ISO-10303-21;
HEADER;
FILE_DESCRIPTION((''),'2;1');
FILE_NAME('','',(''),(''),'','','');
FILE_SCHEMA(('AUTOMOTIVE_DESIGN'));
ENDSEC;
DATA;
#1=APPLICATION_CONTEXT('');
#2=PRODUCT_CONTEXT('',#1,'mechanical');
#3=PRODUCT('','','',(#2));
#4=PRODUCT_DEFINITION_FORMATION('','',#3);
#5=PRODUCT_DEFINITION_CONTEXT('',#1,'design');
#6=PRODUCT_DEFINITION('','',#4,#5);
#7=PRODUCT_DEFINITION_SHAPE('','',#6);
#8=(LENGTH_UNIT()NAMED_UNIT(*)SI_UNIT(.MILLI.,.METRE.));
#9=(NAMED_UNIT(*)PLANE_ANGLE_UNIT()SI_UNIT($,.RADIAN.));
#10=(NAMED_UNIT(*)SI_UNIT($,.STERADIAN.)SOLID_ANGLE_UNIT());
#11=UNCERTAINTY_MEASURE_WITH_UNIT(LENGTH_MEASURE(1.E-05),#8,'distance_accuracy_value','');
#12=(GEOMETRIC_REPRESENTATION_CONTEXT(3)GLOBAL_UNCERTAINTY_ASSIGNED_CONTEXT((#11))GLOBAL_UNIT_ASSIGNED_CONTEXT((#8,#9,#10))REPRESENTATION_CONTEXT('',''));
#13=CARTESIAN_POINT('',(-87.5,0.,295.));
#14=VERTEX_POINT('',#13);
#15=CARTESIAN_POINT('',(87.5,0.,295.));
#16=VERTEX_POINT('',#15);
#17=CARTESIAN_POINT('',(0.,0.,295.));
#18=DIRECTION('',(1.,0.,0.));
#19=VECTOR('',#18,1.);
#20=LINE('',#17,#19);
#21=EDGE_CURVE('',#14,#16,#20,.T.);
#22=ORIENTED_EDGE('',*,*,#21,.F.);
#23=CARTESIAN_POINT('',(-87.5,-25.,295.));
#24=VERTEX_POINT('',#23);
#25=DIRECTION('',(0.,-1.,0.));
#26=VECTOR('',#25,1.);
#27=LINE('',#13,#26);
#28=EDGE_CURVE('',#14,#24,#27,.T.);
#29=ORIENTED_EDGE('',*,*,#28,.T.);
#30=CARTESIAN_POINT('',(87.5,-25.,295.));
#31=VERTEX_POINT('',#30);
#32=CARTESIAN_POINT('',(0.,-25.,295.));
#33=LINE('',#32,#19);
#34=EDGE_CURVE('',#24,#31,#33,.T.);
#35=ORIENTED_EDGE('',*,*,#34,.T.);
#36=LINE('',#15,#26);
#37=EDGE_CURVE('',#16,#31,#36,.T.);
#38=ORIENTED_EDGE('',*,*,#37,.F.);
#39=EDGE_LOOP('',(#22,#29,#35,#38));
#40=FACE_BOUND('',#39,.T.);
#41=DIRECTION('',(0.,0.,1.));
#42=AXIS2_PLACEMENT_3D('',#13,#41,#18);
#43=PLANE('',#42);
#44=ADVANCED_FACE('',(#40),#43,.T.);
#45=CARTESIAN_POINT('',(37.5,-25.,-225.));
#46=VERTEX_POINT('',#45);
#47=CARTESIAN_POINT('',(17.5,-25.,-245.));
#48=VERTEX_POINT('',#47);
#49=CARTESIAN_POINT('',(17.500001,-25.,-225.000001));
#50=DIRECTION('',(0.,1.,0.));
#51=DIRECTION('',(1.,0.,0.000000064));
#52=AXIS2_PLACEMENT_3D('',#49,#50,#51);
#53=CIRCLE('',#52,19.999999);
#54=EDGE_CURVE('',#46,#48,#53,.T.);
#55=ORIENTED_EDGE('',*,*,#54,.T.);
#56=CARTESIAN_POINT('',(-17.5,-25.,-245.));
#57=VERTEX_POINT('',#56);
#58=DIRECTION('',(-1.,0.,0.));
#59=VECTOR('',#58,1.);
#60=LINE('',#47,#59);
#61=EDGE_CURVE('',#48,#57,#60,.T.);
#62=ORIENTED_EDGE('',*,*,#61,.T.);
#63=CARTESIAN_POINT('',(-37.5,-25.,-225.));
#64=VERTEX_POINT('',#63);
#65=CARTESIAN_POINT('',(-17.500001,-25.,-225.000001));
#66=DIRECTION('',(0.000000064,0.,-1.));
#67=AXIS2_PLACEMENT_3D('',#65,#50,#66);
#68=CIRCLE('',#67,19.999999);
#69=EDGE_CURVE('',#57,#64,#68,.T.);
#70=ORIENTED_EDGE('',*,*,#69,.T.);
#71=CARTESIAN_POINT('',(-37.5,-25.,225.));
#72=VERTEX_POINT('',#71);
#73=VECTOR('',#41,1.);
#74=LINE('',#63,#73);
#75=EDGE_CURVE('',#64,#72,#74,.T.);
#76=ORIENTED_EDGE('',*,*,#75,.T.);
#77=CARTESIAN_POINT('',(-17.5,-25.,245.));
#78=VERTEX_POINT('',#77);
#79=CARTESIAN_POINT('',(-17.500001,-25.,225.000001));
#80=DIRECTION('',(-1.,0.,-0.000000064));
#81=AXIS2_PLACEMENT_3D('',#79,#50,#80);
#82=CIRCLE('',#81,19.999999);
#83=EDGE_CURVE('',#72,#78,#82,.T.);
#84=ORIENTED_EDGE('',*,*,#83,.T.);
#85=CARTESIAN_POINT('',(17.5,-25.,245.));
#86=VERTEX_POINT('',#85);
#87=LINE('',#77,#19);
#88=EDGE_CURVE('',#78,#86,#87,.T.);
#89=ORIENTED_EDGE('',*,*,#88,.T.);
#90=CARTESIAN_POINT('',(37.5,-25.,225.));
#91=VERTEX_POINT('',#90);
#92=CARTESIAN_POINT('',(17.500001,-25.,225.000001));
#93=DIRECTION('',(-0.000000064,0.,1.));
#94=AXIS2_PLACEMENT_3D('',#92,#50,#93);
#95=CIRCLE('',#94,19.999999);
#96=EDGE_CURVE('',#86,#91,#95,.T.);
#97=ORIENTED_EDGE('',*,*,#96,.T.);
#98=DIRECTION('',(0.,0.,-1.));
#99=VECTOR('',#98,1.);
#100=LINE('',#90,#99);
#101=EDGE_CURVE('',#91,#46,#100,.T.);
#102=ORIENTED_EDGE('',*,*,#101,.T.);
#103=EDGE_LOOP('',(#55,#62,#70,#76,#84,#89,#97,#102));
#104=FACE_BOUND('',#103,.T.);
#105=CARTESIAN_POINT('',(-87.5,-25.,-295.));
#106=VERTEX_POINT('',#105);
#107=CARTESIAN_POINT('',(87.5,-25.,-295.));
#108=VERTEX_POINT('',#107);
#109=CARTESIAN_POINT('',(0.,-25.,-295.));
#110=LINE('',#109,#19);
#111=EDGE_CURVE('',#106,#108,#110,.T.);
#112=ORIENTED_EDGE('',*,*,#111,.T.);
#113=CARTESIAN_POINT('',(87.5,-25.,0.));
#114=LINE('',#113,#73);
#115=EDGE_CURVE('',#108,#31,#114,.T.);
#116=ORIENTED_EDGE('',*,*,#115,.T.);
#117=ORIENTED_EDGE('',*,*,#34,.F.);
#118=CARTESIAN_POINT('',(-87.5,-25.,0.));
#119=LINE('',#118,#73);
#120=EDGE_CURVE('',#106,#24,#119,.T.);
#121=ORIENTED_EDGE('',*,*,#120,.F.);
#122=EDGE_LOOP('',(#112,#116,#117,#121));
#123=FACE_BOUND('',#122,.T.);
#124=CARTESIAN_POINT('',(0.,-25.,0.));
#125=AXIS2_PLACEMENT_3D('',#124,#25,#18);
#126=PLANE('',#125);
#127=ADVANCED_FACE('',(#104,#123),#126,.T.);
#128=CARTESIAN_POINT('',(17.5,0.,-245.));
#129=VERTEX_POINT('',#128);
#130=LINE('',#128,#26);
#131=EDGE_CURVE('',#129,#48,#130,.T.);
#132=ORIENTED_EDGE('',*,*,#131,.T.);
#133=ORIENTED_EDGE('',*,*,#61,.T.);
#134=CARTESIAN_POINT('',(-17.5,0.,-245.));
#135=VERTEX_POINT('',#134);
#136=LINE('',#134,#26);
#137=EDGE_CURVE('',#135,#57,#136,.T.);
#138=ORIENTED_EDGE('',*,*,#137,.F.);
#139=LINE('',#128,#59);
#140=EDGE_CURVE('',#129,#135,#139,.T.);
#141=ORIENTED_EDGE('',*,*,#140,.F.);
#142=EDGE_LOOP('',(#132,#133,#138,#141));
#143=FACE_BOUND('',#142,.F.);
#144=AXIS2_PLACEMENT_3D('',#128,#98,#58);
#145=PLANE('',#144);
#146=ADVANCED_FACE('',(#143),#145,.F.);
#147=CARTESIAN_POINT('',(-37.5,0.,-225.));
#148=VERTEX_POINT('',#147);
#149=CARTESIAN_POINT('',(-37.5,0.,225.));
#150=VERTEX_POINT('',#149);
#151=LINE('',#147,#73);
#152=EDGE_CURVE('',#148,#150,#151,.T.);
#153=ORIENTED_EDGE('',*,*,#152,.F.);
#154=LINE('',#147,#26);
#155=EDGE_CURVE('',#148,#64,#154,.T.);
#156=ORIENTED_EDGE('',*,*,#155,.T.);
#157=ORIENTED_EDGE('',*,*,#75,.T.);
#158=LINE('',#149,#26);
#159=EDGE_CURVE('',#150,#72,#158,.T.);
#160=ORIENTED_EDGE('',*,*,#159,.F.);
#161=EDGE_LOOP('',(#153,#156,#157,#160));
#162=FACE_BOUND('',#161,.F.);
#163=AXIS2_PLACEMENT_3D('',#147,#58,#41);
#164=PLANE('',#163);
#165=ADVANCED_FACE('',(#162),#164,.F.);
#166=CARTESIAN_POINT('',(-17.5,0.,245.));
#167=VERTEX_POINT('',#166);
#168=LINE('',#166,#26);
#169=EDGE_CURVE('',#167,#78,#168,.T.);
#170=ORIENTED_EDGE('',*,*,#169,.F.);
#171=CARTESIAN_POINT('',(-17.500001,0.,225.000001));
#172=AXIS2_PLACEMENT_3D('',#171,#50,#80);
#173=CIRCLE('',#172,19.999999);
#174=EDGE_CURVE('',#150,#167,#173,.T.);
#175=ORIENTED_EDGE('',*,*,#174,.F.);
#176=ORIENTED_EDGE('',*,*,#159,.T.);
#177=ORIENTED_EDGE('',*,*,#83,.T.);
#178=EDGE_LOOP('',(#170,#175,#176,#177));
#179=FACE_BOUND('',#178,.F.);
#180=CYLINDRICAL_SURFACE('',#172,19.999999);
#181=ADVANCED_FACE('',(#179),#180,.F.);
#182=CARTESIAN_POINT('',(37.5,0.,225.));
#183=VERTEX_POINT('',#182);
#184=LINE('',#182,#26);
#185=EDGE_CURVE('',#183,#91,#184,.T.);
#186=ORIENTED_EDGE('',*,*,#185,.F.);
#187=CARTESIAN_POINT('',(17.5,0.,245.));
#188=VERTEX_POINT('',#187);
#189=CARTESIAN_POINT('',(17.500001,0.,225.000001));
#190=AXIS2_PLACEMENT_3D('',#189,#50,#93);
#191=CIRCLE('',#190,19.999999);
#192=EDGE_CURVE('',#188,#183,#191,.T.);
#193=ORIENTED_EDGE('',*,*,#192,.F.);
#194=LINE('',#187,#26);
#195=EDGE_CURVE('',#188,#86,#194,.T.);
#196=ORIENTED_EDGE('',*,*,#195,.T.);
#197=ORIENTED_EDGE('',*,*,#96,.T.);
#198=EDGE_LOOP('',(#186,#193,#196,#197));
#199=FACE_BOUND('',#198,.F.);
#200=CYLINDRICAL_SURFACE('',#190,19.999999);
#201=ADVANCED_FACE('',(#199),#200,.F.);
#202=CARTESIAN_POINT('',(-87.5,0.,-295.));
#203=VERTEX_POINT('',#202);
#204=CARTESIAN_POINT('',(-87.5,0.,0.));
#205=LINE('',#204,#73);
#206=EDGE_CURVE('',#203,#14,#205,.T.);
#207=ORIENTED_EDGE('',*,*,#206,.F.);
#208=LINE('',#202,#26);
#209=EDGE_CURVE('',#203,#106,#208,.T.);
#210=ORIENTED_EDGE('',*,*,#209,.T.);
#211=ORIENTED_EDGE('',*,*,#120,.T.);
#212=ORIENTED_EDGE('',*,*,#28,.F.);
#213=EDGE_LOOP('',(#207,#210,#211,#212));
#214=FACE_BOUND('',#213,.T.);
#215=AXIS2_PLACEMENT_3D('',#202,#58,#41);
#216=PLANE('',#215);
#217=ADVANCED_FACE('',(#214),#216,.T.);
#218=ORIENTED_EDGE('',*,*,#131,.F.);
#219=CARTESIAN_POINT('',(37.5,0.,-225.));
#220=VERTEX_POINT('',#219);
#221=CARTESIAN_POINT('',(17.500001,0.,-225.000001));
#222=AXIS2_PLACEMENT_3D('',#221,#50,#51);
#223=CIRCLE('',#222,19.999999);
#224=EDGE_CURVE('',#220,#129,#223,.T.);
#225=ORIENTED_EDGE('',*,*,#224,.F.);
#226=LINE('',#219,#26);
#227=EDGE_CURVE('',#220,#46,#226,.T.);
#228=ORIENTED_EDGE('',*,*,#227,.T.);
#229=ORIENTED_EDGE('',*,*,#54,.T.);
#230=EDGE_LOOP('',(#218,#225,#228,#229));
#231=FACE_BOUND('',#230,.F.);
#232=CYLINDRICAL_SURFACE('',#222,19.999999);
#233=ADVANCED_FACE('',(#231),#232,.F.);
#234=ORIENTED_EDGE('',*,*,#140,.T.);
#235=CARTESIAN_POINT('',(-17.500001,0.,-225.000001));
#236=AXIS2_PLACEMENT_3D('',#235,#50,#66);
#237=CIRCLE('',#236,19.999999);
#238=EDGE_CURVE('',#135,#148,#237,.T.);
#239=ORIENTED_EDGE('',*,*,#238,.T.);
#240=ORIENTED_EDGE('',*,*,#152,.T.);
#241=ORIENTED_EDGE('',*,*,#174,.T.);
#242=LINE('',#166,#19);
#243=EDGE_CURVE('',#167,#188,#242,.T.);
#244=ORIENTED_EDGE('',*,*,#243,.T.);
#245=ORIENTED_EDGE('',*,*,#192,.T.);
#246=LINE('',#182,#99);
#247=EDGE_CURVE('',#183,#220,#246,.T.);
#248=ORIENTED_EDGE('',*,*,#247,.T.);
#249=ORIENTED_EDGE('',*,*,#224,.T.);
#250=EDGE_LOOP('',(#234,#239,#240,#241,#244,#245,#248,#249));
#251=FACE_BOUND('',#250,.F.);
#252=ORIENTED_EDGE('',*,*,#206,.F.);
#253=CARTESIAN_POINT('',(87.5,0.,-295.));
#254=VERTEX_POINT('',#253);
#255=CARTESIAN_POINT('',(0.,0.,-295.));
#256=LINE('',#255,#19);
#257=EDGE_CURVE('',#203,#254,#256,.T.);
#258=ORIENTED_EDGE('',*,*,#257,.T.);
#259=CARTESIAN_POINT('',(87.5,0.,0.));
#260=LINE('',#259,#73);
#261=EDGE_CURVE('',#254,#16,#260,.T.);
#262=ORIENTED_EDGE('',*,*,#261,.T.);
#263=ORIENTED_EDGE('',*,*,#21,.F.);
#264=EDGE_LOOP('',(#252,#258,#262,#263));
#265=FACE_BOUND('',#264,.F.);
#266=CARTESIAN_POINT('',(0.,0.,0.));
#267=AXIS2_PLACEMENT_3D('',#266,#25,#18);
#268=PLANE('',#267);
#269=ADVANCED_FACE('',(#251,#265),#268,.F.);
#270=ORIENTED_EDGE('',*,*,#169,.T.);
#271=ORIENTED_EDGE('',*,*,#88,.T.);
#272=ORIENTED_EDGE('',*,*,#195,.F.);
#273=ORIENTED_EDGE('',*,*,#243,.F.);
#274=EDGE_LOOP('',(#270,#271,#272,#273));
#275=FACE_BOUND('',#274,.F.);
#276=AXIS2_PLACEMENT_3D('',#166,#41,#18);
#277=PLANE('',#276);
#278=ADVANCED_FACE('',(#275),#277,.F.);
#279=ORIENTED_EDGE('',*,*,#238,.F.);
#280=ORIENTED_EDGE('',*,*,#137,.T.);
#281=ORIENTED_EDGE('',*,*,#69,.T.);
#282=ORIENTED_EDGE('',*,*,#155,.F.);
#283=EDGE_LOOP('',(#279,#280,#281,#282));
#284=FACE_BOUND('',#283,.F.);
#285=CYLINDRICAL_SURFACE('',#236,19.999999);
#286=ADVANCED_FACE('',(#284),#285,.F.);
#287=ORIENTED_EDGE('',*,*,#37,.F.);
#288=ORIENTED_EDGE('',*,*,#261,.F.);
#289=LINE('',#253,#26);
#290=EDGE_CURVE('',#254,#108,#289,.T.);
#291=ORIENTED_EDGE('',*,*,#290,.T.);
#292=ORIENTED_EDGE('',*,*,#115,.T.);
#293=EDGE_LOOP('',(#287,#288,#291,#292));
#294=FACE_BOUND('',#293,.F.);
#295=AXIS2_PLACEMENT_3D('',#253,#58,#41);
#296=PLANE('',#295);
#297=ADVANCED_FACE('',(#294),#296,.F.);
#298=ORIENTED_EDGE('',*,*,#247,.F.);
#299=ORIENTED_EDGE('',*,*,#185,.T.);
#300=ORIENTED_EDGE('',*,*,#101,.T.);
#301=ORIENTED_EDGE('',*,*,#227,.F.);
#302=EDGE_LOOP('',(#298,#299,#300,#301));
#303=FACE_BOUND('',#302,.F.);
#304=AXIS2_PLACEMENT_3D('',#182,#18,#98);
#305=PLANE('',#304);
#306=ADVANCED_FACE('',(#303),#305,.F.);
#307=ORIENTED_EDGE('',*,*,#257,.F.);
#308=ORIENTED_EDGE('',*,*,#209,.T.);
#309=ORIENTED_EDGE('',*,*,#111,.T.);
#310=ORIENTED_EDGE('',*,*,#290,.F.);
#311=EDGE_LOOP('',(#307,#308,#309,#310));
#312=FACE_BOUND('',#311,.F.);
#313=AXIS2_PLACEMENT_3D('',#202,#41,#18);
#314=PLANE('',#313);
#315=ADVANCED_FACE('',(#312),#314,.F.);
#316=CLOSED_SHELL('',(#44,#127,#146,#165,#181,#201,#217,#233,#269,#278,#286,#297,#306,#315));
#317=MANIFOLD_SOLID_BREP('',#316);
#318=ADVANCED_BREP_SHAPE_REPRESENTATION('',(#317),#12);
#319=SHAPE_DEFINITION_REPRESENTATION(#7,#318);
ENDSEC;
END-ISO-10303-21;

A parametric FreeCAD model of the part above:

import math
import FreeCAD as App
import Part
import Sketcher
from FreeCAD import Vector
Q = App.Units.Quantity


def add_polygon(sketch, points):
    """Adds a closed chain of lines whose ends are joined by coincident constraints."""
    first, n = sketch.GeometryCount, len(points)
    for a, b in zip(points, points[1:] + points[:1]):
        sketch.addGeometry(Part.LineSegment(App.Vector(*a, 0), App.Vector(*b, 0)), False)
    for i in range(n):
        sketch.addConstraint(Sketcher.Constraint("Coincident", first + i, 2, first + (i + 1) % n, 1))

doc = App.newDocument("Part")
body = doc.addObject("PartDesign::Body", "Body")

# Sketch on XZ plane
sketch1 = body.newObject("Sketcher::SketchObject", "Sketch")
sketch1.AttachmentSupport = (doc.getObject("XZ_Plane"), [""])
sketch1.MapMode = "FlatFace"
add_polygon(sketch1, [(-87.5, 295), (-87.5, -295), (87.5, -295), (87.5, 295)])  # lines 0-3
sketch1.addGeometry(Part.LineSegment(Vector(-37.5, -225, 0), Vector(-37.5, 225, 0)), False)  # 4
sketch1.addGeometry(Part.ArcOfCircle(Part.Circle(Vector(-17.500001, 225.000001, 0), Vector(0, 0, 1), 19.999999), math.radians(89.999996), math.radians(180.000004)), False)  # 5
sketch1.addGeometry(Part.LineSegment(Vector(-17.5, 245, 0), Vector(17.5, 245, 0)), False)  # 6
sketch1.addGeometry(Part.ArcOfCircle(Part.Circle(Vector(17.500001, 225.000001, 0), Vector(0, 0, 1), 19.999999), math.radians(-0.000004), math.radians(90.000004)), False)  # 7
sketch1.addGeometry(Part.LineSegment(Vector(37.5, 225, 0), Vector(37.5, -225, 0)), False)  # 8
sketch1.addGeometry(Part.ArcOfCircle(Part.Circle(Vector(17.500001, -225.000001, 0), Vector(0, 0, 1), 19.999999), math.radians(-90.000004), math.radians(0.000004)), False)  # 9
sketch1.addGeometry(Part.LineSegment(Vector(17.5, -245, 0), Vector(-17.5, -245, 0)), False)  # 10
sketch1.addGeometry(Part.ArcOfCircle(Part.Circle(Vector(-17.500001, -225.000001, 0), Vector(0, 0, 1), 19.999999), math.radians(179.999996), math.radians(270.000004)), False)  # 11
sketch1.addConstraint(Sketcher.Constraint("Tangent", 4, 2, 5, 2))
sketch1.addConstraint(Sketcher.Constraint("Tangent", 5, 1, 6, 1))
sketch1.addConstraint(Sketcher.Constraint("Tangent", 6, 2, 7, 2))
sketch1.addConstraint(Sketcher.Constraint("Tangent", 7, 1, 8, 1))
sketch1.addConstraint(Sketcher.Constraint("Tangent", 8, 2, 9, 2))
sketch1.addConstraint(Sketcher.Constraint("Tangent", 9, 1, 10, 1))
sketch1.addConstraint(Sketcher.Constraint("Tangent", 10, 2, 11, 2))
sketch1.addConstraint(Sketcher.Constraint("Tangent", 11, 1, 4, 1))
sketch1.addConstraint(Sketcher.Constraint("Vertical", 0))
sketch1.addConstraint(Sketcher.Constraint("Horizontal", 1))
sketch1.addConstraint(Sketcher.Constraint("Vertical", 2))
sketch1.addConstraint(Sketcher.Constraint("Horizontal", 3))
sketch1.addConstraint(Sketcher.Constraint("Vertical", 4))
sketch1.addConstraint(Sketcher.Constraint("Horizontal", 6))
sketch1.addConstraint(Sketcher.Constraint("Vertical", 8))
sketch1.addConstraint(Sketcher.Constraint("Horizontal", 10))
sketch1.addConstraint(Sketcher.Constraint("Equal", 5, 7))
sketch1.addConstraint(Sketcher.Constraint("Equal", 7, 9))
sketch1.addConstraint(Sketcher.Constraint("Equal", 9, 11))
sketch1.addConstraint(Sketcher.Constraint("Symmetric", 5, 3, 9, 3, -1, 1))
sketch1.addConstraint(Sketcher.Constraint("Symmetric", 0, 2, 2, 2, -1, 1))
sketch1.addConstraint(Sketcher.Constraint("Radius", 5, Q("19.999999 mm")))
sketch1.addConstraint(Sketcher.Constraint("DistanceX", 1, 1, 1, 2, Q("175 mm")))
sketch1.addConstraint(Sketcher.Constraint("DistanceX", 6, 1, 6, 2, Q("35 mm")))
sketch1.addConstraint(Sketcher.Constraint("DistanceY", 0, 2, 0, 1, Q("590 mm")))
sketch1.addConstraint(Sketcher.Constraint("DistanceY", 4, 1, 4, 2, Q("450 mm")))
pad1 = body.newObject("PartDesign::Pad", "Pad")
pad1.Profile = sketch1
pad1.Length = 25

doc.recompute()
